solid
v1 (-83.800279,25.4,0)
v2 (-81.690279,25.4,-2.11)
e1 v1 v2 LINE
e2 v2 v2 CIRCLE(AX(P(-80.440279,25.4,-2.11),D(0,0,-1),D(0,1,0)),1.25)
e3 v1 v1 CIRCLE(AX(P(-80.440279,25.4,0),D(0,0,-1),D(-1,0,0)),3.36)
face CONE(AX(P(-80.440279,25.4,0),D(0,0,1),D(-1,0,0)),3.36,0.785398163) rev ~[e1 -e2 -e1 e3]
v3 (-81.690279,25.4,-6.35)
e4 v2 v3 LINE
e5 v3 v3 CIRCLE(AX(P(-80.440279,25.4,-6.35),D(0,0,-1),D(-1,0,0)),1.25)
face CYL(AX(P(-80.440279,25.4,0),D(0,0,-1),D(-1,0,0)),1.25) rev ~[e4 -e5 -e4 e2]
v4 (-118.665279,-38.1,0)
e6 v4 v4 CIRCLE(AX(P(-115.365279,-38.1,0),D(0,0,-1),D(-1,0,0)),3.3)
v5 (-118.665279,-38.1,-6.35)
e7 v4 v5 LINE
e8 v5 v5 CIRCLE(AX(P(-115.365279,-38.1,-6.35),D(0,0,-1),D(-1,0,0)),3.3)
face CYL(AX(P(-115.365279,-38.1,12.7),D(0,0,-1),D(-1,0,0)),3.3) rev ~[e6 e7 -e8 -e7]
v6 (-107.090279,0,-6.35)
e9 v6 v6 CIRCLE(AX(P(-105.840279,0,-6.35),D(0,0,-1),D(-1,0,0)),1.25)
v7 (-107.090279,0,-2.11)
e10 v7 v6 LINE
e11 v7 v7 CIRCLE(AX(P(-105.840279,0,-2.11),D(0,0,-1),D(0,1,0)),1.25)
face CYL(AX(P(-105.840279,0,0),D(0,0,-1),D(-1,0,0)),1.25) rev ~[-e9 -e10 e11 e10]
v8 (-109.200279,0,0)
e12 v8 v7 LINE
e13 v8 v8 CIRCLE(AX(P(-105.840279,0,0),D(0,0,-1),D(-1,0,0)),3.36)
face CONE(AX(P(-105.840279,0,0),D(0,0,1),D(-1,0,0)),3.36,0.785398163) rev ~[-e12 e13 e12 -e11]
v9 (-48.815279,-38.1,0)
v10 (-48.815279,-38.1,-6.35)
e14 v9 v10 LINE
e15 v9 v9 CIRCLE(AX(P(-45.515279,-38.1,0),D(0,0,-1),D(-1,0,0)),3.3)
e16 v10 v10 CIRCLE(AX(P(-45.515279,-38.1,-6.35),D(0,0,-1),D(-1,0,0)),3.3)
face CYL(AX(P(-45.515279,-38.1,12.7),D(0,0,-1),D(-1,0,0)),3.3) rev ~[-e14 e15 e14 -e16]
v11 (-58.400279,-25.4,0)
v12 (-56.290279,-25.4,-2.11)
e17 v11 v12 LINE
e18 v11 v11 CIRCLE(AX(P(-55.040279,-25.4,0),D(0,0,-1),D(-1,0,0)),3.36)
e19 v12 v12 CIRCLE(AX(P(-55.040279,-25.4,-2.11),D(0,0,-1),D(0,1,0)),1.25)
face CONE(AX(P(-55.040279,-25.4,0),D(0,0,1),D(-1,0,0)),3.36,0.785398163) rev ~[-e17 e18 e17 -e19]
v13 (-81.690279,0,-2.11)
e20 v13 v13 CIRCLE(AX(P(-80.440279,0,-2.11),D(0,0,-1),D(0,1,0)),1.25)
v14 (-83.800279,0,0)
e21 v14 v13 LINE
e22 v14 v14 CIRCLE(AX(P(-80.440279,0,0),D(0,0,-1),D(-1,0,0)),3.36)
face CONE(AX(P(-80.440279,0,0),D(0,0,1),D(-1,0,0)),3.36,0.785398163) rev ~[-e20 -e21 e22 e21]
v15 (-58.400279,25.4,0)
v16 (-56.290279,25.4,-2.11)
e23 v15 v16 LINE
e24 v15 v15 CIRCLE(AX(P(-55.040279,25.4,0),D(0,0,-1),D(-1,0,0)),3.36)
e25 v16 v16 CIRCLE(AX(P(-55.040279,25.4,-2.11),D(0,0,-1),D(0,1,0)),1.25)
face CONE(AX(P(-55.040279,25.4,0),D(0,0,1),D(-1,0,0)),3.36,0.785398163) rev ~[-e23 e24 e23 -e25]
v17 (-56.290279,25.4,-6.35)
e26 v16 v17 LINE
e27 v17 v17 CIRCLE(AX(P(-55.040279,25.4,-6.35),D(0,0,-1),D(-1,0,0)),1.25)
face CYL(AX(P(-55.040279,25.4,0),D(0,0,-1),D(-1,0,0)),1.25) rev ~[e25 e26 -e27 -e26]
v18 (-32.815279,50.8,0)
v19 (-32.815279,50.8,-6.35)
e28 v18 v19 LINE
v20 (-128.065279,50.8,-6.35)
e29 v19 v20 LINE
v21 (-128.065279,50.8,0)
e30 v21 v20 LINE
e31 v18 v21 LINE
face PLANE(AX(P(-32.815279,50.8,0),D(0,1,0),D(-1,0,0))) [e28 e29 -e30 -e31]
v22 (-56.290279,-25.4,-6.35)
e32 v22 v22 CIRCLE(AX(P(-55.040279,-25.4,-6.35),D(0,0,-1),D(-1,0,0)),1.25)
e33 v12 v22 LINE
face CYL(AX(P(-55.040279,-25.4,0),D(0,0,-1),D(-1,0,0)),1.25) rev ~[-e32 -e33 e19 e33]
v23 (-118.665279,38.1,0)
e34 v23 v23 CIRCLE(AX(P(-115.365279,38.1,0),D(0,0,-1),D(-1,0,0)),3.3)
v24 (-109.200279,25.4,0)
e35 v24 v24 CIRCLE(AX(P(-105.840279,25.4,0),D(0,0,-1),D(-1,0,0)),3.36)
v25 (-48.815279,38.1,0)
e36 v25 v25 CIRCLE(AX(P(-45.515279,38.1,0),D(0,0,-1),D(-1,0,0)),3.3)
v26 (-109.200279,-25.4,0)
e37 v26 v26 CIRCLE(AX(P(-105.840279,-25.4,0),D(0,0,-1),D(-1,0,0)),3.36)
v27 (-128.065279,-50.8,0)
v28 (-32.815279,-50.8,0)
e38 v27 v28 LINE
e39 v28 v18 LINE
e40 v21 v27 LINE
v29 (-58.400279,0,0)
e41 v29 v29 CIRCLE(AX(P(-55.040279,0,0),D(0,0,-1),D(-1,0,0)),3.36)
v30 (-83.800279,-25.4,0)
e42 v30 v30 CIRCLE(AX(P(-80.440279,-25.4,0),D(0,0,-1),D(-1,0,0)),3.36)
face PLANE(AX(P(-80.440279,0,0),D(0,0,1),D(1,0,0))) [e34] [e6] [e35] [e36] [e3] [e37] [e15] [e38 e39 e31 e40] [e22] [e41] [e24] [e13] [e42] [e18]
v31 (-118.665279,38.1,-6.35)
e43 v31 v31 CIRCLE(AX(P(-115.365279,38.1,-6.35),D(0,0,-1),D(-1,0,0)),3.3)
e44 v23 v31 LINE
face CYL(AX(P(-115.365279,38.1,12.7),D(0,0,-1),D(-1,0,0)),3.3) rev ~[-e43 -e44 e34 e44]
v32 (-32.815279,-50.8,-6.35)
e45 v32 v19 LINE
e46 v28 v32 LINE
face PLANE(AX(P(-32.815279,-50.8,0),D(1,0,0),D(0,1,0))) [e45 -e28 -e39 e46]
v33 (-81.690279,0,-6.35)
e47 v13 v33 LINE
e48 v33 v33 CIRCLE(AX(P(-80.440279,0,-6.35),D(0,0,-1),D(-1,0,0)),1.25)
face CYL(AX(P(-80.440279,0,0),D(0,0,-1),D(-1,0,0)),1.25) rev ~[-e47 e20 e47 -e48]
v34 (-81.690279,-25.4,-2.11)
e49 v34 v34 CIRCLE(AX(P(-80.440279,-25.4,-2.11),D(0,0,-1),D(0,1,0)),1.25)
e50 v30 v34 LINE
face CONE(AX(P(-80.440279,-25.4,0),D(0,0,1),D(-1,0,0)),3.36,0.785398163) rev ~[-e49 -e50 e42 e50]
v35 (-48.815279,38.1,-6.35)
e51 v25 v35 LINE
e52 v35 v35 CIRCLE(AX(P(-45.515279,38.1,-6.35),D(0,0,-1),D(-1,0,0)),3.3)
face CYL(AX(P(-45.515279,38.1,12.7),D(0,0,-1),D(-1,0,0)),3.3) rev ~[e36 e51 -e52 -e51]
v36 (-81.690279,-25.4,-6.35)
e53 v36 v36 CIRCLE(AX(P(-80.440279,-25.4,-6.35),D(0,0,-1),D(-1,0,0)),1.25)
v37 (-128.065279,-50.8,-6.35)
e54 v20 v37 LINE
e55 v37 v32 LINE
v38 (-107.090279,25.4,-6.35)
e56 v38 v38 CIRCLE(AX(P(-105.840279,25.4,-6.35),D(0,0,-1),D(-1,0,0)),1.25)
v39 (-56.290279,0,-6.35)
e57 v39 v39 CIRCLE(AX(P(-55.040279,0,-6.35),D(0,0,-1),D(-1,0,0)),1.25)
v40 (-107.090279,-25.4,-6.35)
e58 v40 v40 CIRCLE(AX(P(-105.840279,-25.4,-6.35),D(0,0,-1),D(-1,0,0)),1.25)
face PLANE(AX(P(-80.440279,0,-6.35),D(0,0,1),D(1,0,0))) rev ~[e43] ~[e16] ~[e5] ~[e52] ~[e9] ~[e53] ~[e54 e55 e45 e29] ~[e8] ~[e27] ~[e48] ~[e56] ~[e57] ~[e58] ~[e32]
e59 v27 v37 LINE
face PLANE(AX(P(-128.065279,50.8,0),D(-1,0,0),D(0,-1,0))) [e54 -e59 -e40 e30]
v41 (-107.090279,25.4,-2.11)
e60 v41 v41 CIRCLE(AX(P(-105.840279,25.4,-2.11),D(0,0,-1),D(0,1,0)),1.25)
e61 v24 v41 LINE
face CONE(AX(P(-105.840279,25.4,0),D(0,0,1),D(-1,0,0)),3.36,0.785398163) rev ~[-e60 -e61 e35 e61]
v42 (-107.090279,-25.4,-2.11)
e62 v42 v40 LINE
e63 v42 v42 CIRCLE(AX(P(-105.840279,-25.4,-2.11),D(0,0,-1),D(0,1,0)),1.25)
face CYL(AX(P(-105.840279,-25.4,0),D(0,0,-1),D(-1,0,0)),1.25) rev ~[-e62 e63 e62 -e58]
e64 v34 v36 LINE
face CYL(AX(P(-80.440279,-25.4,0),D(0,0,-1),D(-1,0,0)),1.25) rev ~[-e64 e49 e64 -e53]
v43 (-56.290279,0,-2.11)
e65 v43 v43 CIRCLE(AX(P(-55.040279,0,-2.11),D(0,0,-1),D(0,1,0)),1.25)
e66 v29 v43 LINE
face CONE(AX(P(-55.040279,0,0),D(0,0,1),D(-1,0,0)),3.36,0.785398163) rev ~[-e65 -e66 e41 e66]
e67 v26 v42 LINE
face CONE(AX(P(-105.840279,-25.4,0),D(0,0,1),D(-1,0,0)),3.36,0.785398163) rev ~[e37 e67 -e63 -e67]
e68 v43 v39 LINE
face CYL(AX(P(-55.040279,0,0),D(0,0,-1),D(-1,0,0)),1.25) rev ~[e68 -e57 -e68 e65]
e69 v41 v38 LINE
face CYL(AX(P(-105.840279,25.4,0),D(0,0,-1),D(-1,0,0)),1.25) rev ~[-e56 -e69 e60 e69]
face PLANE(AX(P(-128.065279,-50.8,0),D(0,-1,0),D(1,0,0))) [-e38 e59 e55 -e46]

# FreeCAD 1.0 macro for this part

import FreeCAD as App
import Part
import Sketcher
from FreeCAD import Vector
Q = App.Units.Quantity


def add_polygon(sketch, points):
    """Adds a closed chain of lines whose ends are joined by coincident constraints."""
    first, n = sketch.GeometryCount, len(points)
    for a, b in zip(points, points[1:] + points[:1]):
        sketch.addGeometry(Part.LineSegment(App.Vector(*a, 0), App.Vector(*b, 0)), False)
    for i in range(n):
        sketch.addConstraint(Sketcher.Constraint("Coincident", first + i, 2, first + (i + 1) % n, 1))

doc = App.newDocument("Part")
body = doc.addObject("PartDesign::Body", "Body")

# Sketch on XY plane
sketch1 = body.newObject("Sketcher::SketchObject", "Sketch")
sketch1.AttachmentSupport = (doc.getObject("XY_Plane"), [""])
sketch1.MapMode = "FlatFace"
add_polygon(sketch1, [(-33, 51), (-128, 51), (-128, -51), (-33, -51)])  # lines 0-3
sketch1.addConstraint([
    Sketcher.Constraint("Horizontal", 0),
    Sketcher.Constraint("Vertical", 1),
    Sketcher.Constraint("Horizontal", 2),
    Sketcher.Constraint("Vertical", 3),
    Sketcher.Constraint("DistanceY", 1, 2, 1, 1, Q("4 in")),
    Sketcher.Constraint("DistanceY", -1, 1, 0, 2, Q("2 in")),
    Sketcher.Constraint("DistanceX", 0, 2, 0, 1, Q("3.75 in")),
    Sketcher.Constraint("DistanceX", 0, 2, -1, 1, Q("128.065279 mm")),
])
pad1 = body.newObject("PartDesign::Pad", "Pad")
pad1.Profile = sketch1
pad1.Length = Q("0.25 in")
pad1.Reversed = True

# Sketch on XY plane
sketch2 = body.newObject("Sketcher::SketchObject", "Sketch001")
sketch2.AttachmentSupport = (doc.getObject("XY_Plane"), [""])
sketch2.MapMode = "FlatFace"
sketch2.addGeometry([
    Part.Circle(Vector(-115.4, 38.1, 0), Vector(0, 0, 1), 3.3),
    Part.Circle(Vector(-45.5, 38.1, 0), Vector(0, 0, 1), 3.3),
    Part.Circle(Vector(-45.5, -38.1, 0), Vector(0, 0, 1), 3.3),
    Part.Circle(Vector(-115.4, -38.1, 0), Vector(0, 0, 1), 3.3),
], False)
sketch2.addConstraint([
    Sketcher.Constraint("Equal", 0, 1),
    Sketcher.Constraint("Equal", 1, 2),
    Sketcher.Constraint("Equal", 2, 3),
    Sketcher.Constraint("Symmetric", 1, 3, 2, 3, -1),
    Sketcher.Constraint("Symmetric", 0, 3, 3, 3, -1),
    Sketcher.Constraint("Horizontal", 0, 3, 1, 3),
    Sketcher.Constraint("DistanceY", 2, 3, 1, 3, Q("3 in")),
    Sketcher.Constraint("Diameter", 0, Q("6.6 mm")),
    Sketcher.Constraint("DistanceX", 0, 3, 1, 3, Q("2.75 in")),
    Sketcher.Constraint("DistanceX", 0, 3, -1, 1, Q("115.365279 mm")),
])
doc.recompute()
hole = body.newObject("PartDesign::Hole", "Hole")
hole.Profile = sketch2
hole.ThreadType = "None"
hole.Diameter = 6.6
hole.DepthType = "Dimension"
hole.Depth = Q("0.5 in")
hole.DrillPoint = "Angled"
hole.DrillPointAngle = 118

# Sketch on XY plane
sketch3 = body.newObject("Sketcher::SketchObject", "Sketch002")
sketch3.AttachmentSupport = (doc.getObject("XY_Plane"), [""])
sketch3.MapMode = "FlatFace"
sketch3.addGeometry([
    Part.Circle(Vector(-105.8, 25.4, 0), Vector(0, 0, 1), 1.2),  # 0
    Part.Circle(Vector(-80.4, 25.4, 0), Vector(0, 0, 1), 1.2),  # 1
    Part.Circle(Vector(-55, 25.4, 0), Vector(0, 0, 1), 1.2),  # 2
    Part.Circle(Vector(-80.4, 0, 0), Vector(0, 0, 1), 1.2),  # 3
    Part.Circle(Vector(-55, 0, 0), Vector(0, 0, 1), 1.2),  # 4
    Part.Circle(Vector(-105.8, 0, 0), Vector(0, 0, 1), 1.2),  # 5
    Part.Circle(Vector(-105.8, -25.4, 0), Vector(0, 0, 1), 1.2),  # 6
    Part.Circle(Vector(-80.4, -25.4, 0), Vector(0, 0, 1), 1.2),  # 7
    Part.Circle(Vector(-55, -25.4, 0), Vector(0, 0, 1), 1.2),  # 8
], False)
sketch3.addConstraint([
    Sketcher.Constraint("Equal", 0, 1),
    Sketcher.Constraint("Equal", 1, 2),
    Sketcher.Constraint("Equal", 2, 3),
    Sketcher.Constraint("Equal", 3, 4),
    Sketcher.Constraint("Equal", 4, 5),
    Sketcher.Constraint("Equal", 5, 6),
    Sketcher.Constraint("Equal", 6, 7),
    Sketcher.Constraint("Equal", 7, 8),
    Sketcher.Constraint("Symmetric", 0, 3, 6, 3, -1),
    Sketcher.Constraint("Symmetric", 1, 3, 7, 3, -1),
    Sketcher.Constraint("Symmetric", 2, 3, 8, 3, -1),
    Sketcher.Constraint("PointOnObject", 3, 3, -1),
    Sketcher.Constraint("PointOnObject", 4, 3, -1),
    Sketcher.Constraint("PointOnObject", 5, 3, -1),
    Sketcher.Constraint("Horizontal", 0, 3, 1, 3),
    Sketcher.Constraint("Horizontal", 1, 3, 2, 3),
    Sketcher.Constraint("Vertical", 1, 3, 3, 3),
    Sketcher.Constraint("Vertical", 2, 3, 4, 3),
    Sketcher.Constraint("Vertical", 0, 3, 5, 3),
    Sketcher.Constraint("DistanceY", -1, 1, 0, 3, Q("1 in")),
    Sketcher.Constraint("DistanceX", 0, 3, 1, 3, Q("1 in")),
    Sketcher.Constraint("DistanceX", 1, 3, 2, 3, Q("1 in")),
    Sketcher.Constraint("Diameter", 0, Q("2.5 mm")),
    Sketcher.Constraint("DistanceX", 0, 3, -1, 1, Q("105.840279 mm")),
])
doc.recompute()
hole2 = body.newObject("PartDesign::Hole", "Hole001")
hole2.Profile = sketch3
hole2.ThreadType = "None"
hole2.Diameter = 2.5
hole2.DepthType = "Dimension"
hole2.Depth = 12.7014
hole2.DrillPoint = "Angled"
hole2.DrillPointAngle = 118
hole2.HoleCutType = "Countersink"
hole2.HoleCutDiameter = 6.72
hole2.HoleCutCountersinkAngle = 90

doc.recompute()
